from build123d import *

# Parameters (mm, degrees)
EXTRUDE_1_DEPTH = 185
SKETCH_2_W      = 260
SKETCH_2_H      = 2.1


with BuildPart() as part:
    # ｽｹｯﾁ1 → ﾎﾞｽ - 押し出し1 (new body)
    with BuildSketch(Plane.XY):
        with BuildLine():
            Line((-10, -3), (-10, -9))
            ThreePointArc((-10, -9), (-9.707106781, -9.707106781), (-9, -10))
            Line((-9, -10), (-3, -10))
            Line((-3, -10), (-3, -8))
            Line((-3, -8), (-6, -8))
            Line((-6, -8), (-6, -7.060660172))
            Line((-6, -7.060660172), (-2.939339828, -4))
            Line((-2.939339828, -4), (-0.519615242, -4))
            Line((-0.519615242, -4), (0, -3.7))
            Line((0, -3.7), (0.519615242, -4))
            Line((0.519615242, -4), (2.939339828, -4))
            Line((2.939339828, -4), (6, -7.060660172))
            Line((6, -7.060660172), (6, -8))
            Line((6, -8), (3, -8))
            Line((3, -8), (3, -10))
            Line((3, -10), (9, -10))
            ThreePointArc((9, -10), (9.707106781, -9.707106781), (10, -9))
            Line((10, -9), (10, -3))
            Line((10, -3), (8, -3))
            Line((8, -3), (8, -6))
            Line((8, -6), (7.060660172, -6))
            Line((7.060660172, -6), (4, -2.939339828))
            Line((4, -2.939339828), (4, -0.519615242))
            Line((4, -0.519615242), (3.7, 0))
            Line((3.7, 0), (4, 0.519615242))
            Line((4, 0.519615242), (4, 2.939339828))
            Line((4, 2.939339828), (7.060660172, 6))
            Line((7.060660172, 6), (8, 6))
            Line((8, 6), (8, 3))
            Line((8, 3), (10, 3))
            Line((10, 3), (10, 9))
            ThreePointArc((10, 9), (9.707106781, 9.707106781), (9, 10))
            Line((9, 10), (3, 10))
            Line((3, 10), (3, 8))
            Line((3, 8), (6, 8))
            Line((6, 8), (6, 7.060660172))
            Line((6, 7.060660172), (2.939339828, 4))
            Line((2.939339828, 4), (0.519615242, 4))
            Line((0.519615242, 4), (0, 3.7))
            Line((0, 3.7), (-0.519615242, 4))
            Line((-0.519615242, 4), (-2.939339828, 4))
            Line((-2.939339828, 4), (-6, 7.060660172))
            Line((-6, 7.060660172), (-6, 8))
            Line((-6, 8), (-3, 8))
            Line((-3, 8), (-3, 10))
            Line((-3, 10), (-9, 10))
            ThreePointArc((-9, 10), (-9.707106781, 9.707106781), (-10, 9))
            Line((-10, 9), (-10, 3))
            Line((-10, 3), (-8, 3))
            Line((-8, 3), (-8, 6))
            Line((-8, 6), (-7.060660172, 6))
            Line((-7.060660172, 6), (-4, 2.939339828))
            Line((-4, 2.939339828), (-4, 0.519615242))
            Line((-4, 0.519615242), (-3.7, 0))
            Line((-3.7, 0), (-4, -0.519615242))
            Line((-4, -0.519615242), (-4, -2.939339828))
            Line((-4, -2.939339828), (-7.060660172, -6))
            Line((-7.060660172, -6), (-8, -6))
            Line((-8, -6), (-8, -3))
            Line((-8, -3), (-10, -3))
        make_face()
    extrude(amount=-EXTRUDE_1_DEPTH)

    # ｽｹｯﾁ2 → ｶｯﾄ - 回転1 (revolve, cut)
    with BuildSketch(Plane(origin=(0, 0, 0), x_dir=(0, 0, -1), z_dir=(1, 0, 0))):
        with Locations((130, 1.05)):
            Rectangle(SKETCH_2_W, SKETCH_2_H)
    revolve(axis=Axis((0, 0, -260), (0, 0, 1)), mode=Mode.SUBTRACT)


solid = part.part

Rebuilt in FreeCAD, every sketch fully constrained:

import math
import FreeCAD as App
import Part
import Sketcher

V = App.Vector
Q = App.Units.Quantity

doc = App.newDocument("Part")
body = doc.addObject("PartDesign::Body", "Body")

# Sketch on XY plane
sketch1 = body.newObject("Sketcher::SketchObject", "Sketch")
sketch1.AttachmentSupport = (doc.getObject("XY_Plane"), [""])
sketch1.MapMode = "FlatFace"
sketch1.addGeometry(Part.LineSegment(V(-10, -3, 0), V(-10, -9, 0)), False)
sketch1.addGeometry(Part.ArcOfCircle(Part.Circle(V(-9, -9, 0), V(0, 0, 1), 1), math.radians(-180), math.radians(-90)), False)
sketch1.addGeometry(Part.LineSegment(V(-9, -10, 0), V(-3, -10, 0)), False)
sketch1.addGeometry(Part.LineSegment(V(-3, -10, 0), V(-3, -8, 0)), False)
sketch1.addGeometry(Part.LineSegment(V(-3, -8, 0), V(-6, -8, 0)), False)
sketch1.addGeometry(Part.LineSegment(V(-6, -8, 0), V(-6, -7.1, 0)), False)
sketch1.addGeometry(Part.LineSegment(V(-6, -7.1, 0), V(-2.9, -4, 0)), False)
sketch1.addGeometry(Part.LineSegment(V(-2.9, -4, 0), V(-0.5, -4, 0)), False)
sketch1.addGeometry(Part.LineSegment(V(-0.5, -4, 0), V(0, -3.7, 0)), False)
sketch1.addGeometry(Part.LineSegment(V(0, -3.7, 0), V(0.5, -4, 0)), False)
sketch1.addGeometry(Part.LineSegment(V(0.5, -4, 0), V(2.9, -4, 0)), False)
sketch1.addGeometry(Part.LineSegment(V(2.9, -4, 0), V(6, -7.1, 0)), False)
sketch1.addGeometry(Part.LineSegment(V(6, -7.1, 0), V(6, -8, 0)), False)
sketch1.addGeometry(Part.LineSegment(V(6, -8, 0), V(3, -8, 0)), False)
sketch1.addGeometry(Part.LineSegment(V(3, -8, 0), V(3, -10, 0)), False)
sketch1.addGeometry(Part.LineSegment(V(3, -10, 0), V(9, -10, 0)), False)
sketch1.addGeometry(Part.ArcOfCircle(Part.Circle(V(9, -9, 0), V(0, 0, 1), 1), math.radians(-90), math.radians(0)), False)
sketch1.addGeometry(Part.LineSegment(V(10, -9, 0), V(10, -3, 0)), False)
sketch1.addGeometry(Part.LineSegment(V(10, -3, 0), V(8, -3, 0)), False)
sketch1.addGeometry(Part.LineSegment(V(8, -3, 0), V(8, -6, 0)), False)
sketch1.addGeometry(Part.LineSegment(V(8, -6, 0), V(7.1, -6, 0)), False)
sketch1.addGeometry(Part.LineSegment(V(7.1, -6, 0), V(4, -2.9, 0)), False)
sketch1.addGeometry(Part.LineSegment(V(4, -2.9, 0), V(4, -0.5, 0)), False)
sketch1.addGeometry(Part.LineSegment(V(4, -0.5, 0), V(3.7, 0, 0)), False)
sketch1.addGeometry(Part.LineSegment(V(3.7, 0, 0), V(4, 0.5, 0)), False)
sketch1.addGeometry(Part.LineSegment(V(4, 0.5, 0), V(4, 2.9, 0)), False)
sketch1.addGeometry(Part.LineSegment(V(4, 2.9, 0), V(7.1, 6, 0)), False)
sketch1.addGeometry(Part.LineSegment(V(7.1, 6, 0), V(8, 6, 0)), False)
sketch1.addGeometry(Part.LineSegment(V(8, 6, 0), V(8, 3, 0)), False)
sketch1.addGeometry(Part.LineSegment(V(8, 3, 0), V(10, 3, 0)), False)
sketch1.addGeometry(Part.LineSegment(V(10, 3, 0), V(10, 9, 0)), False)
sketch1.addGeometry(Part.ArcOfCircle(Part.Circle(V(9, 9, 0), V(0, 0, 1), 1), math.radians(0), math.radians(90)), False)
sketch1.addGeometry(Part.LineSegment(V(9, 10, 0), V(3, 10, 0)), False)
sketch1.addGeometry(Part.LineSegment(V(3, 10, 0), V(3, 8, 0)), False)
sketch1.addGeometry(Part.LineSegment(V(3, 8, 0), V(6, 8, 0)), False)
sketch1.addGeometry(Part.LineSegment(V(6, 8, 0), V(6, 7.1, 0)), False)
sketch1.addGeometry(Part.LineSegment(V(6, 7.1, 0), V(2.9, 4, 0)), False)
sketch1.addGeometry(Part.LineSegment(V(2.9, 4, 0), V(0.5, 4, 0)), False)
sketch1.addGeometry(Part.LineSegment(V(0.5, 4, 0), V(0, 3.7, 0)), False)
sketch1.addGeometry(Part.LineSegment(V(0, 3.7, 0), V(-0.5, 4, 0)), False)
sketch1.addGeometry(Part.LineSegment(V(-0.5, 4, 0), V(-2.9, 4, 0)), False)
sketch1.addGeometry(Part.LineSegment(V(-2.9, 4, 0), V(-6, 7.1, 0)), False)
sketch1.addGeometry(Part.LineSegment(V(-6, 7.1, 0), V(-6, 8, 0)), False)
sketch1.addGeometry(Part.LineSegment(V(-6, 8, 0), V(-3, 8, 0)), False)
sketch1.addGeometry(Part.LineSegment(V(-3, 8, 0), V(-3, 10, 0)), False)
sketch1.addGeometry(Part.LineSegment(V(-3, 10, 0), V(-9, 10, 0)), False)
sketch1.addGeometry(Part.ArcOfCircle(Part.Circle(V(-9, 9, 0), V(0, 0, 1), 1), math.radians(90), math.radians(180)), False)
sketch1.addGeometry(Part.LineSegment(V(-10, 9, 0), V(-10, 3, 0)), False)
sketch1.addGeometry(Part.LineSegment(V(-10, 3, 0), V(-8, 3, 0)), False)
sketch1.addGeometry(Part.LineSegment(V(-8, 3, 0), V(-8, 6, 0)), False)
sketch1.addGeometry(Part.LineSegment(V(-8, 6, 0), V(-7.1, 6, 0)), False)
sketch1.addGeometry(Part.LineSegment(V(-7.1, 6, 0), V(-4, 2.9, 0)), False)
sketch1.addGeometry(Part.LineSegment(V(-4, 2.9, 0), V(-4, 0.5, 0)), False)
sketch1.addGeometry(Part.LineSegment(V(-4, 0.5, 0), V(-3.7, 0, 0)), False)
sketch1.addGeometry(Part.LineSegment(V(-3.7, 0, 0), V(-4, -0.5, 0)), False)
sketch1.addGeometry(Part.LineSegment(V(-4, -0.5, 0), V(-4, -2.9, 0)), False)
sketch1.addGeometry(Part.LineSegment(V(-4, -2.9, 0), V(-7.1, -6, 0)), False)
sketch1.addGeometry(Part.LineSegment(V(-7.1, -6, 0), V(-8, -6, 0)), False)
sketch1.addGeometry(Part.LineSegment(V(-8, -6, 0), V(-8, -3, 0)), False)
sketch1.addGeometry(Part.LineSegment(V(-8, -3, 0), V(-10, -3, 0)), False)
sketch1.addConstraint(Sketcher.Constraint("Tangent", 0, 2, 1, 1))
sketch1.addConstraint(Sketcher.Constraint("Tangent", 1, 2, 2, 1))
sketch1.addConstraint(Sketcher.Constraint("Coincident", 2, 2, 3, 1))
sketch1.addConstraint(Sketcher.Constraint("Coincident", 3, 2, 4, 1))
sketch1.addConstraint(Sketcher.Constraint("Coincident", 4, 2, 5, 1))
sketch1.addConstraint(Sketcher.Constraint("Coincident", 5, 2, 6, 1))
sketch1.addConstraint(Sketcher.Constraint("Coincident", 6, 2, 7, 1))
sketch1.addConstraint(Sketcher.Constraint("Coincident", 7, 2, 8, 1))
sketch1.addConstraint(Sketcher.Constraint("Coincident", 8, 2, 9, 1))
sketch1.addConstraint(Sketcher.Constraint("Coincident", 9, 2, 10, 1))
sketch1.addConstraint(Sketcher.Constraint("Coincident", 10, 2, 11, 1))
sketch1.addConstraint(Sketcher.Constraint("Coincident", 11, 2, 12, 1))
sketch1.addConstraint(Sketcher.Constraint("Coincident", 12, 2, 13, 1))
sketch1.addConstraint(Sketcher.Constraint("Coincident", 13, 2, 14, 1))
sketch1.addConstraint(Sketcher.Constraint("Coincident", 14, 2, 15, 1))
sketch1.addConstraint(Sketcher.Constraint("Tangent", 15, 2, 16, 1))
sketch1.addConstraint(Sketcher.Constraint("Tangent", 16, 2, 17, 1))
sketch1.addConstraint(Sketcher.Constraint("Coincident", 17, 2, 18, 1))
sketch1.addConstraint(Sketcher.Constraint("Coincident", 18, 2, 19, 1))
sketch1.addConstraint(Sketcher.Constraint("Coincident", 19, 2, 20, 1))
sketch1.addConstraint(Sketcher.Constraint("Coincident", 20, 2, 21, 1))
sketch1.addConstraint(Sketcher.Constraint("Coincident", 21, 2, 22, 1))
sketch1.addConstraint(Sketcher.Constraint("Coincident", 22, 2, 23, 1))
sketch1.addConstraint(Sketcher.Constraint("Coincident", 23, 2, 24, 1))
sketch1.addConstraint(Sketcher.Constraint("Coincident", 24, 2, 25, 1))
sketch1.addConstraint(Sketcher.Constraint("Coincident", 25, 2, 26, 1))
sketch1.addConstraint(Sketcher.Constraint("Coincident", 26, 2, 27, 1))
sketch1.addConstraint(Sketcher.Constraint("Coincident", 27, 2, 28, 1))
sketch1.addConstraint(Sketcher.Constraint("Coincident", 28, 2, 29, 1))
sketch1.addConstraint(Sketcher.Constraint("Coincident", 29, 2, 30, 1))
sketch1.addConstraint(Sketcher.Constraint("Tangent", 30, 2, 31, 1))
sketch1.addConstraint(Sketcher.Constraint("Tangent", 31, 2, 32, 1))
sketch1.addConstraint(Sketcher.Constraint("Coincident", 32, 2, 33, 1))
sketch1.addConstraint(Sketcher.Constraint("Coincident", 33, 2, 34, 1))
sketch1.addConstraint(Sketcher.Constraint("Coincident", 34, 2, 35, 1))
sketch1.addConstraint(Sketcher.Constraint("Coincident", 35, 2, 36, 1))
sketch1.addConstraint(Sketcher.Constraint("Coincident", 36, 2, 37, 1))
sketch1.addConstraint(Sketcher.Constraint("Coincident", 37, 2, 38, 1))
sketch1.addConstraint(Sketcher.Constraint("Coincident", 38, 2, 39, 1))
sketch1.addConstraint(Sketcher.Constraint("Coincident", 39, 2, 40, 1))
sketch1.addConstraint(Sketcher.Constraint("Coincident", 40, 2, 41, 1))
sketch1.addConstraint(Sketcher.Constraint("Coincident", 41, 2, 42, 1))
sketch1.addConstraint(Sketcher.Constraint("Coincident", 42, 2, 43, 1))
sketch1.addConstraint(Sketcher.Constraint("Coincident", 43, 2, 44, 1))
sketch1.addConstraint(Sketcher.Constraint("Coincident", 44, 2, 45, 1))
sketch1.addConstraint(Sketcher.Constraint("Tangent", 45, 2, 46, 1))
sketch1.addConstraint(Sketcher.Constraint("Tangent", 46, 2, 47, 1))
sketch1.addConstraint(Sketcher.Constraint("Coincident", 47, 2, 48, 1))
sketch1.addConstraint(Sketcher.Constraint("Coincident", 48, 2, 49, 1))
sketch1.addConstraint(Sketcher.Constraint("Coincident", 49, 2, 50, 1))
sketch1.addConstraint(Sketcher.Constraint("Coincident", 50, 2, 51, 1))
sketch1.addConstraint(Sketcher.Constraint("Coincident", 51, 2, 52, 1))
sketch1.addConstraint(Sketcher.Constraint("Coincident", 52, 2, 53, 1))
sketch1.addConstraint(Sketcher.Constraint("Coincident", 53, 2, 54, 1))
sketch1.addConstraint(Sketcher.Constraint("Coincident", 54, 2, 55, 1))
sketch1.addConstraint(Sketcher.Constraint("Coincident", 55, 2, 56, 1))
sketch1.addConstraint(Sketcher.Constraint("Coincident", 56, 2, 57, 1))
sketch1.addConstraint(Sketcher.Constraint("Coincident", 57, 2, 58, 1))
sketch1.addConstraint(Sketcher.Constraint("Coincident", 58, 2, 59, 1))
sketch1.addConstraint(Sketcher.Constraint("Coincident", 59, 2, 0, 1))
sketch1.addConstraint(Sketcher.Constraint("Vertical", 0))
sketch1.addConstraint(Sketcher.Constraint("Horizontal", 2))
sketch1.addConstraint(Sketcher.Constraint("Vertical", 3))
sketch1.addConstraint(Sketcher.Constraint("Horizontal", 4))
sketch1.addConstraint(Sketcher.Constraint("Vertical", 5))
sketch1.addConstraint(Sketcher.Constraint("Horizontal", 7))
sketch1.addConstraint(Sketcher.Constraint("Horizontal", 10))
sketch1.addConstraint(Sketcher.Constraint("Vertical", 12))
sketch1.addConstraint(Sketcher.Constraint("Horizontal", 13))
sketch1.addConstraint(Sketcher.Constraint("Vertical", 14))
sketch1.addConstraint(Sketcher.Constraint("Horizontal", 15))
sketch1.addConstraint(Sketcher.Constraint("Vertical", 17))
sketch1.addConstraint(Sketcher.Constraint("Horizontal", 18))
sketch1.addConstraint(Sketcher.Constraint("Vertical", 19))
sketch1.addConstraint(Sketcher.Constraint("Horizontal", 20))
sketch1.addConstraint(Sketcher.Constraint("Vertical", 22))
sketch1.addConstraint(Sketcher.Constraint("Vertical", 25))
sketch1.addConstraint(Sketcher.Constraint("Horizontal", 27))
sketch1.addConstraint(Sketcher.Constraint("Vertical", 28))
sketch1.addConstraint(Sketcher.Constraint("Horizontal", 29))
sketch1.addConstraint(Sketcher.Constraint("Vertical", 30))
sketch1.addConstraint(Sketcher.Constraint("Horizontal", 32))
sketch1.addConstraint(Sketcher.Constraint("Vertical", 33))
sketch1.addConstraint(Sketcher.Constraint("Horizontal", 34))
sketch1.addConstraint(Sketcher.Constraint("Vertical", 35))
sketch1.addConstraint(Sketcher.Constraint("Horizontal", 37))
sketch1.addConstraint(Sketcher.Constraint("Horizontal", 40))
sketch1.addConstraint(Sketcher.Constraint("Vertical", 42))
sketch1.addConstraint(Sketcher.Constraint("Horizontal", 43))
sketch1.addConstraint(Sketcher.Constraint("Vertical", 44))
sketch1.addConstraint(Sketcher.Constraint("Horizontal", 45))
sketch1.addConstraint(Sketcher.Constraint("Vertical", 47))
sketch1.addConstraint(Sketcher.Constraint("Horizontal", 48))
sketch1.addConstraint(Sketcher.Constraint("Vertical", 49))
sketch1.addConstraint(Sketcher.Constraint("Horizontal", 50))
sketch1.addConstraint(Sketcher.Constraint("Vertical", 52))
sketch1.addConstraint(Sketcher.Constraint("Vertical", 55))
sketch1.addConstraint(Sketcher.Constraint("Horizontal", 57))
sketch1.addConstraint(Sketcher.Constraint("Vertical", 58))
sketch1.addConstraint(Sketcher.Constraint("Horizontal", 59))
sketch1.addConstraint(Sketcher.Constraint("Equal", 1, 16))
sketch1.addConstraint(Sketcher.Constraint("Equal", 16, 31))
sketch1.addConstraint(Sketcher.Constraint("Equal", 31, 46))
sketch1.addConstraint(Sketcher.Constraint("Symmetric", 1, 3, 31, 3, -1, 1))
sketch1.addConstraint(Sketcher.Constraint("Symmetric", 16, 3, 46, 3, -1, 1))
sketch1.addConstraint(Sketcher.Constraint("Symmetric", 3, 2, 33, 2, -1, 1))
sketch1.addConstraint(Sketcher.Constraint("Symmetric", 5, 2, 35, 2, -1, 1))
sketch1.addConstraint(Sketcher.Constraint("Symmetric", 6, 2, 36, 2, -1, 1))
sketch1.addConstraint(Sketcher.Constraint("Symmetric", 8, 2, 38, 2, -1, 1))
sketch1.addConstraint(Sketcher.Constraint("Symmetric", 9, 2, 39, 2, -1, 1))
sketch1.addConstraint(Sketcher.Constraint("Symmetric", 11, 2, 41, 2, -1, 1))
sketch1.addConstraint(Sketcher.Constraint("Symmetric", 13, 2, 43, 2, -1, 1))
sketch1.addConstraint(Sketcher.Constraint("Symmetric", 18, 2, 48, 2, -1, 1))
sketch1.addConstraint(Sketcher.Constraint("Symmetric", 20, 2, 50, 2, -1, 1))
sketch1.addConstraint(Sketcher.Constraint("Symmetric", 21, 2, 51, 2, -1, 1))
sketch1.addConstraint(Sketcher.Constraint("Symmetric", 23, 2, 53, 2, -1, 1))
sketch1.addConstraint(Sketcher.Constraint("Symmetric", 24, 2, 54, 2, -1, 1))
sketch1.addConstraint(Sketcher.Constraint("Symmetric", 26, 2, 56, 2, -1, 1))
sketch1.addConstraint(Sketcher.Constraint("Symmetric", 28, 2, 58, 2, -1, 1))
sketch1.addConstraint(Sketcher.Constraint("Symmetric", 1, 3, 16, 3, -2))
sketch1.addConstraint(Sketcher.Constraint("Symmetric", 7, 2, 9, 2, -2))
sketch1.addConstraint(Sketcher.Constraint("Symmetric", 5, 2, 11, 2, -2))
sketch1.addConstraint(Sketcher.Constraint("Symmetric", 3, 2, 13, 2, -2))
sketch1.addConstraint(Sketcher.Constraint("Symmetric", 28, 2, 48, 2, -2))
sketch1.addConstraint(Sketcher.Constraint("Symmetric", 26, 2, 50, 2, -2))
sketch1.addConstraint(Sketcher.Constraint("Symmetric", 25, 2, 51, 2, -2))
sketch1.addConstraint(Sketcher.Constraint("PointOnObject", 8, 2, -2))
sketch1.addConstraint(Sketcher.Constraint("PointOnObject", 23, 2, -1))
sketch1.addConstraint(Sketcher.Constraint("Perpendicular", 6, 11))
sketch1.addConstraint(Sketcher.Constraint("Parallel", 11, 21))
sketch1.addConstraint(Sketcher.Constraint("Perpendicular", 8, 23))
sketch1.addConstraint(Sketcher.Constraint("Perpendicular", 9, 24))
sketch1.addConstraint(Sketcher.Constraint("Perpendicular", 21, 26))
sketch1.addConstraint(Sketcher.Constraint("Perpendicular", 23, 38))
sketch1.addConstraint(Sketcher.Constraint("Perpendicular", 36, 41))
sketch1.addConstraint(Sketcher.Constraint("Perpendicular", 38, 53))
sketch1.addConstraint(Sketcher.Constraint("Perpendicular", 51, 56))
sketch1.addConstraint(Sketcher.Constraint("Equal", 45, 0))
sketch1.addConstraint(Sketcher.Constraint("Equal", 59, 3))
sketch1.addConstraint(Sketcher.Constraint("Equal", 57, 5))
sketch1.addConstraint(Sketcher.Constraint("Equal", 43, 19))
sketch1.addConstraint(Sketcher.Constraint("Equal", 40, 22))
sketch1.addConstraint(Sketcher.Constraint("Equal", 11, 21))
sketch1.addConstraint(Sketcher.Constraint("Equal", 9, 23))
sketch1.addConstraint(Sketcher.Constraint("Radius", 1, Q("1 mm")))
sketch1.addConstraint(Sketcher.Constraint("DistanceX", 2, 1, 2, 2, Q("6 mm")))
sketch1.addConstraint(Sketcher.Constraint("DistanceX", 4, 2, 4, 1, Q("3 mm")))
sketch1.addConstraint(Sketcher.Constraint("DistanceX", 18, 2, 18, 1, Q("2 mm")))
sketch1.addConstraint(Sketcher.Constraint("Angle", 8, Q("30 deg")))
sketch1.addConstraint(Sketcher.Constraint("DistanceX", 1, 3, -1, 1, Q("9 mm")))
sketch1.addConstraint(Sketcher.Constraint("DistanceY", 6, 2, -1, 1, Q("4 mm")))
sketch1.addConstraint(Sketcher.Constraint("Distance", 8, Q("0.6 mm")))
sketch1.addConstraint(Sketcher.Constraint("DistanceX", 20, 2, 20, 1, Q("0.93934 mm")))
pad1 = body.newObject("PartDesign::Pad", "Pad")
pad1.Profile = sketch1
pad1.Length = 185
pad1.Reversed = True

# Sketch on YZ plane
sketch2 = body.newObject("Sketcher::SketchObject", "Sketch001")
sketch2.AttachmentSupport = (doc.getObject("YZ_Plane"), [""])
sketch2.MapMode = "FlatFace"
sketch2.addGeometry(Part.LineSegment(V(2.1, 0, 0), V(0, 0, 0)), False)
sketch2.addGeometry(Part.LineSegment(V(0, 0, 0), V(0, -260, 0)), False)
sketch2.addGeometry(Part.LineSegment(V(0, -260, 0), V(2.1, -260, 0)), False)
sketch2.addGeometry(Part.LineSegment(V(2.1, -260, 0), V(2.1, 0, 0)), False)
sketch2.addConstraint(Sketcher.Constraint("Coincident", 0, 2, 1, 1))
sketch2.addConstraint(Sketcher.Constraint("Coincident", 1, 2, 2, 1))
sketch2.addConstraint(Sketcher.Constraint("Coincident", 2, 2, 3, 1))
sketch2.addConstraint(Sketcher.Constraint("Coincident", 3, 2, 0, 1))
sketch2.addConstraint(Sketcher.Constraint("Horizontal", 0))
sketch2.addConstraint(Sketcher.Constraint("Vertical", 1))
sketch2.addConstraint(Sketcher.Constraint("Horizontal", 2))
sketch2.addConstraint(Sketcher.Constraint("Vertical", 3))
sketch2.addConstraint(Sketcher.Constraint("Coincident", 0, 2, -1, 1))
sketch2.addConstraint(Sketcher.Constraint("DistanceY", 1, 2, 1, 1, Q("260 mm")))
sketch2.addConstraint(Sketcher.Constraint("DistanceX", 0, 2, 0, 1, Q("2.1 mm")))
groove = body.newObject("PartDesign::Groove", "Groove")
groove.Profile = sketch2
groove.ReferenceAxis = (sketch2, ["V_Axis"])
groove.Angle = 360

doc.recompute()
